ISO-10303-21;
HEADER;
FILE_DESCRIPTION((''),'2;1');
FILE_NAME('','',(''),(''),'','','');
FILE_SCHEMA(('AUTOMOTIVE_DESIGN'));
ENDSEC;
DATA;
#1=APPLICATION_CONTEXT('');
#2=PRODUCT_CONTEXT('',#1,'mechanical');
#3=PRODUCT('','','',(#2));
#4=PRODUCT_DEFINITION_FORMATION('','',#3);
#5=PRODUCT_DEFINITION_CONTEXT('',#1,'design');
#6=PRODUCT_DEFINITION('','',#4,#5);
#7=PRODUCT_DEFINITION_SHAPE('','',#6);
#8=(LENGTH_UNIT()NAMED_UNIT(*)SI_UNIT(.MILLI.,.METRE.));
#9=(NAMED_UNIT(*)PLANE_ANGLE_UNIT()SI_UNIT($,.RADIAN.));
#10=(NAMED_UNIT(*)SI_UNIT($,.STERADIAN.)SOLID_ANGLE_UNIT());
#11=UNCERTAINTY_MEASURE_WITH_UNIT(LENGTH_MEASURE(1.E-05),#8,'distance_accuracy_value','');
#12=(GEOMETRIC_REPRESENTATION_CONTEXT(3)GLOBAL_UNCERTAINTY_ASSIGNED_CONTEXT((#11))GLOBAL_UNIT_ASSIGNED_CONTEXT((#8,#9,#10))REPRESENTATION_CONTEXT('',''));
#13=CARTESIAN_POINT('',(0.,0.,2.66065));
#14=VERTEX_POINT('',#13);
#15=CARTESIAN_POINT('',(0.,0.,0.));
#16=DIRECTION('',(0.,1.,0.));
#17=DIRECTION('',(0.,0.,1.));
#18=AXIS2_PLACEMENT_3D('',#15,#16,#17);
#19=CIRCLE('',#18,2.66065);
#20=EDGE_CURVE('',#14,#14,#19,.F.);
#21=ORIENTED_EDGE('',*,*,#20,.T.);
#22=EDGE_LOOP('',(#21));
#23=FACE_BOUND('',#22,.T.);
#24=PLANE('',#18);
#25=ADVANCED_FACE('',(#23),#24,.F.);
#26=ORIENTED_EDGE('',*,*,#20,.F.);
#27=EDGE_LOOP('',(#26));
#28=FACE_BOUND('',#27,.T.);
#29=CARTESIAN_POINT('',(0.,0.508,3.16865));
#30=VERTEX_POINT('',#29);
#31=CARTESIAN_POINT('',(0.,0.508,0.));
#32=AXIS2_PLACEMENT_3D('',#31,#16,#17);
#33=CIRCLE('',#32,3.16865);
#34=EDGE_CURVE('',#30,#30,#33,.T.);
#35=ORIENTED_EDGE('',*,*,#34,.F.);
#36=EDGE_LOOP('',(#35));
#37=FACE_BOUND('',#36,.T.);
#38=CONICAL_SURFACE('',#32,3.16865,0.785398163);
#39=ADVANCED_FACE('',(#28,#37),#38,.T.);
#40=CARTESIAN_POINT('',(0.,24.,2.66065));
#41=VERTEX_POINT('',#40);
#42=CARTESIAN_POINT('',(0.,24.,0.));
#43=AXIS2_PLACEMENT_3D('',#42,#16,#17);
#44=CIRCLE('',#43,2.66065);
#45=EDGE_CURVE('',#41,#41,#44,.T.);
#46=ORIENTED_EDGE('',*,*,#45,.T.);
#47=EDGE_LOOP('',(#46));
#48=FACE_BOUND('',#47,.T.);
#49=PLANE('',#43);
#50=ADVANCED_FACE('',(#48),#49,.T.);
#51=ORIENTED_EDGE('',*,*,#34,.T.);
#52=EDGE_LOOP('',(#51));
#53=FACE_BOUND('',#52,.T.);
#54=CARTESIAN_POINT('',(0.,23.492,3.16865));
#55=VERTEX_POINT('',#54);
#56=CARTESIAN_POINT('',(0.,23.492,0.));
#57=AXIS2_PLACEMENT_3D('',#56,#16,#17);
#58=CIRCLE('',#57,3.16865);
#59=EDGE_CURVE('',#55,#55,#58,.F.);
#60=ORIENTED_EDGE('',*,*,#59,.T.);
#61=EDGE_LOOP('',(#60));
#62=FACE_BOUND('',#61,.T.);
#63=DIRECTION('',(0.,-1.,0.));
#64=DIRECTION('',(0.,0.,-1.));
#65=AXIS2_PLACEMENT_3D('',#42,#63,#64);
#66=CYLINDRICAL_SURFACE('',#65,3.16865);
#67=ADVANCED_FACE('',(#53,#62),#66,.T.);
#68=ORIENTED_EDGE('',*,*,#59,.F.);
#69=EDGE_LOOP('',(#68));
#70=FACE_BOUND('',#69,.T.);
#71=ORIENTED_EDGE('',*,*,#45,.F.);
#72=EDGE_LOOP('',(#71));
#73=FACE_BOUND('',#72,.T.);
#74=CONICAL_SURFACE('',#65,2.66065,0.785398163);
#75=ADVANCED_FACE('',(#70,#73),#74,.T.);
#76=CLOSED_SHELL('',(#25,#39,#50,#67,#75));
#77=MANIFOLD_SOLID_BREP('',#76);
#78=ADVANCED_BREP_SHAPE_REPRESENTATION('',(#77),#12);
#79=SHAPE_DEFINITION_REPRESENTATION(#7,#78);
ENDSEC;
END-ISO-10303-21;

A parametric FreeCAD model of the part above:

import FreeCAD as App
import Part
import Sketcher

V = App.Vector


def edges_at(feature, points):
    """Names of the edges that pass closest to the given points."""
    edges = feature.Shape.Edges
    near = lambda p: min(range(len(edges)), key=lambda i: edges[i].distToShape(Part.Vertex(*p))[0])
    return sorted({f"Edge{near(p) + 1}" for p in points})

doc = App.newDocument("Part")
body = doc.addObject("PartDesign::Body", "Body")

sketch1 = doc.addObject("Sketcher::SketchObject", "Sketch")
body.addObject(sketch1)
sketch1.AttachmentSupport = (doc.XZ_Plane, [""])
sketch1.MapMode = "FlatFace"
sketch1.addGeometry(Part.Circle(V(0, 0, 0), V(0, 0, 1), 3.2), False)
sketch1.addConstraint([
    Sketcher.Constraint("Coincident", 0, 3, -1, 1),
    Sketcher.Constraint("Diameter", 0, 6.3373),
])
pad1 = doc.addObject("PartDesign::Pad", "Pad")
body.addObject(pad1)
pad1.Profile = sketch1
pad1.Length = 24
pad1.Reversed = True
doc.recompute()

chamfer = doc.addObject("PartDesign::Chamfer", "Chamfer")
body.addObject(chamfer)
chamfer.Base = (pad1, edges_at(pad1, [(0, 0, -3.169), (0, 24, -3.169)]))
chamfer.Size = 0.508

doc.recompute()
